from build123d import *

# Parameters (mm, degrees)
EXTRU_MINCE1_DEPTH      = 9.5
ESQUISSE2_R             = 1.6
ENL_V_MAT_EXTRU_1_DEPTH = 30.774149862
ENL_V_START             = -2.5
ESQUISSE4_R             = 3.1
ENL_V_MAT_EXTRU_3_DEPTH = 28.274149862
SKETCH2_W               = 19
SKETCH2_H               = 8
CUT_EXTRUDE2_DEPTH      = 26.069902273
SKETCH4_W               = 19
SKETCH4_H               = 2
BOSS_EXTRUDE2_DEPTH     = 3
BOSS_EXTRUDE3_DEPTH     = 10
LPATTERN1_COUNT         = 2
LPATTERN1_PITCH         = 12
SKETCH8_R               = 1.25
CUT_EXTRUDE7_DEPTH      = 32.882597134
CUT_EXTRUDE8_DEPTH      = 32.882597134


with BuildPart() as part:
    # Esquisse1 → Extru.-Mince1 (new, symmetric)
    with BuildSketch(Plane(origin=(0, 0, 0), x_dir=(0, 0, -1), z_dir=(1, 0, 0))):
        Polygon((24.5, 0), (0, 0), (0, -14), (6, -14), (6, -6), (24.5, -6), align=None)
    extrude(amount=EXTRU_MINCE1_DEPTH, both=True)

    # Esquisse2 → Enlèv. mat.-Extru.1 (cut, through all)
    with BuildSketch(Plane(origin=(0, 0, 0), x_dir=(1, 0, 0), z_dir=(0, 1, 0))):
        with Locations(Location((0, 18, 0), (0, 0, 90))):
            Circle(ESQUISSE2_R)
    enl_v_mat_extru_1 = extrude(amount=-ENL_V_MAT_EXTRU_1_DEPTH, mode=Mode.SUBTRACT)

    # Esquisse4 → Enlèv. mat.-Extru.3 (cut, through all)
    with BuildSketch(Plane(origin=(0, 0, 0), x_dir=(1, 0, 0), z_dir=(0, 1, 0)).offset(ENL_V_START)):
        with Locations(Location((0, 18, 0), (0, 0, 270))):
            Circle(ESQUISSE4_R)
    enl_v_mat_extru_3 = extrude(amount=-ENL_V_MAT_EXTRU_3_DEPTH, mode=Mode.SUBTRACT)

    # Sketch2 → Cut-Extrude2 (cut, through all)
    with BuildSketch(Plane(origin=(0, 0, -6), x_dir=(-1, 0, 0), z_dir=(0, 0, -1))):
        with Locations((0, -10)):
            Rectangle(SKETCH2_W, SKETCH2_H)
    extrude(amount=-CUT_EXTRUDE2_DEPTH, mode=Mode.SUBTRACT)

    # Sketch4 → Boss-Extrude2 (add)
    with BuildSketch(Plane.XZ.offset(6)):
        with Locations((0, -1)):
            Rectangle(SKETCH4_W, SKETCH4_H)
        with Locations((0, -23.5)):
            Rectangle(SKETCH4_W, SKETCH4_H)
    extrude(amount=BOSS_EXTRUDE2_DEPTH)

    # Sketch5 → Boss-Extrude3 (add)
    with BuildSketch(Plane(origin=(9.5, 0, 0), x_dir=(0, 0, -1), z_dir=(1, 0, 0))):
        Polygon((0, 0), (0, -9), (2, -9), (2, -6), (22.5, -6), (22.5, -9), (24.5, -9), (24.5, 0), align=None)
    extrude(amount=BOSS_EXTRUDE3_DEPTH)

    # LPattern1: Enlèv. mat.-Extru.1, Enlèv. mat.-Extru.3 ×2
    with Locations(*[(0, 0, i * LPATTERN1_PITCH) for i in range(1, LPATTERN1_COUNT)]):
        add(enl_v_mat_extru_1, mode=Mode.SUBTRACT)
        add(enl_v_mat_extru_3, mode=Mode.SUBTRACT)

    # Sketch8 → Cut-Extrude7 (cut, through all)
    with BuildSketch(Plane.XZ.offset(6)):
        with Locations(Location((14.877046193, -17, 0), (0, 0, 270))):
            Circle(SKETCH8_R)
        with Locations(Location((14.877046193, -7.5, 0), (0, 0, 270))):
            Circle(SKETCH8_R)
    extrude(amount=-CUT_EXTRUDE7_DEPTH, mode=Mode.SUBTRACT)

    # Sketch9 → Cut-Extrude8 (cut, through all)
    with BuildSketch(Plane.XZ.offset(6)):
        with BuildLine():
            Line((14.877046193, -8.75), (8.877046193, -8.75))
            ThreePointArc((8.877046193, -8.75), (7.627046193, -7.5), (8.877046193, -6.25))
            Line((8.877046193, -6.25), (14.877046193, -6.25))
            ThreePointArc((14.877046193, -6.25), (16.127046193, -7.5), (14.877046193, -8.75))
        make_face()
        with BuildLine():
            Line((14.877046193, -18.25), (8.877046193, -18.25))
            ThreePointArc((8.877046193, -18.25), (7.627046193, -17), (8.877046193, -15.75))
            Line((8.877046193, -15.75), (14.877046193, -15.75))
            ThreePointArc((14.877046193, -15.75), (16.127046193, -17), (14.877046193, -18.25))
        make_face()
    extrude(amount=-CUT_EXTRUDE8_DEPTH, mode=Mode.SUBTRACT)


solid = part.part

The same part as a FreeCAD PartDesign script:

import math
import FreeCAD as App
import Part
import Sketcher
from FreeCAD import Vector
Q = App.Units.Quantity


def add_polygon(sketch, points):
    """Adds a closed chain of lines whose ends are joined by coincident constraints."""
    first, n = sketch.GeometryCount, len(points)
    for a, b in zip(points, points[1:] + points[:1]):
        sketch.addGeometry(Part.LineSegment(App.Vector(*a, 0), App.Vector(*b, 0)), False)
    for i in range(n):
        sketch.addConstraint(Sketcher.Constraint("Coincident", first + i, 2, first + (i + 1) % n, 1))

doc = App.newDocument("Part")
body = doc.addObject("PartDesign::Body", "Body")

# Sketch on YZ plane
sketch1 = doc.addObject("Sketcher::SketchObject", "Sketch")
body.addObject(sketch1)
sketch1.AttachmentSupport = (doc.YZ_Plane, [""])
sketch1.MapMode = "FlatFace"
add_polygon(sketch1, [(0, -24.5), (0, 0), (-14, 0), (-14, -6), (-6, -6), (-6, -24.5)])  # lines 0-5
sketch1.addConstraint([
    Sketcher.Constraint("Vertical", 0),
    Sketcher.Constraint("Horizontal", 1),
    Sketcher.Constraint("Vertical", 2),
    Sketcher.Constraint("Horizontal", 3),
    Sketcher.Constraint("Vertical", 4),
    Sketcher.Constraint("Horizontal", 5),
    Sketcher.Constraint("Coincident", 0, 2, -1, 1),
    Sketcher.Constraint("Equal", 5, 2),
    Sketcher.Constraint("DistanceX", 1, 2, 1, 1, Q("14 mm")),
    Sketcher.Constraint("DistanceX", 3, 1, 3, 2, Q("8 mm")),
    Sketcher.Constraint("DistanceY", 0, 1, 0, 2, Q("24.5 mm")),
])
pad1 = doc.addObject("PartDesign::Pad", "Pad")
body.addObject(pad1)
pad1.Profile = sketch1
pad1.Length = 19
pad1.Midplane = True

# Sketch on XZ plane
sketch2 = doc.addObject("Sketcher::SketchObject", "Sketch001")
body.addObject(sketch2)
sketch2.AttachmentSupport = (doc.XZ_Plane, [""])
sketch2.MapMode = "FlatFace"
sketch2.addGeometry(Part.Circle(Vector(0, -18, 0), Vector(0, 0, 1), 1.6), False)
sketch2.addConstraint([
    Sketcher.Constraint("PointOnObject", 0, 3, -2),
    Sketcher.Constraint("Diameter", 0, Q("3.2 mm")),
    Sketcher.Constraint("DistanceY", 0, 3, -1, 1, Q("18 mm")),
])
pocket1 = doc.addObject("PartDesign::Pocket", "Pocket")
body.addObject(pocket1)
pocket1.Profile = sketch2
pocket1.Type = "ThroughAll"
pocket1.Reversed = True

# Sketch on XZ plane
sketch3 = doc.addObject("Sketcher::SketchObject", "Sketch002")
body.addObject(sketch3)
sketch3.AttachmentSupport = (doc.XZ_Plane, [""])
sketch3.MapMode = "FlatFace"
sketch3.AttachmentOffset = App.Placement(Vector(0, 0, 2.5), App.Rotation())
sketch3.addGeometry(Part.Circle(Vector(0, -18, 0), Vector(0, 0, 1), 3.1), False)
sketch3.addConstraint([
    Sketcher.Constraint("PointOnObject", 0, 3, -2),
    Sketcher.Constraint("Diameter", 0, Q("6.2 mm")),
    Sketcher.Constraint("DistanceY", 0, 3, -1, 1, Q("18 mm")),
])
pocket2 = doc.addObject("PartDesign::Pocket", "Pocket001")
body.addObject(pocket2)
pocket2.Profile = sketch3
pocket2.Type = "ThroughAll"
pocket2.Reversed = True

# Sketch on XY plane
sketch4 = doc.addObject("Sketcher::SketchObject", "Sketch003")
body.addObject(sketch4)
sketch4.AttachmentSupport = (doc.XY_Plane, [""])
sketch4.MapMode = "FlatFace"
sketch4.AttachmentOffset = App.Placement(Vector(0, 0, -6), App.Rotation())
add_polygon(sketch4, [(9.5, -6), (9.5, -14), (-9.5, -14), (-9.5, -6)])  # lines 0-3
sketch4.addConstraint([
    Sketcher.Constraint("Vertical", 0),
    Sketcher.Constraint("Horizontal", 1),
    Sketcher.Constraint("Vertical", 2),
    Sketcher.Constraint("Horizontal", 3),
    Sketcher.Constraint("DistanceX", 1, 2, 1, 1, Q("19 mm")),
    Sketcher.Constraint("DistanceY", 0, 2, 0, 1, Q("8 mm")),
    Sketcher.Constraint("DistanceY", 0, 2, -1, 1, Q("14 mm")),
    Sketcher.Constraint("DistanceX", -1, 1, 0, 2, Q("9.5 mm")),
])
pocket3 = doc.addObject("PartDesign::Pocket", "Pocket002")
body.addObject(pocket3)
pocket3.Profile = sketch4
pocket3.Type = "ThroughAll"
pocket3.Reversed = True

# Sketch on XZ plane
sketch5 = doc.addObject("Sketcher::SketchObject", "Sketch004")
body.addObject(sketch5)
sketch5.AttachmentSupport = (doc.XZ_Plane, [""])
sketch5.MapMode = "FlatFace"
sketch5.AttachmentOffset = App.Placement(Vector(0, 0, 6), App.Rotation())
add_polygon(sketch5, [(-9.5, 0), (-9.5, -2), (9.5, -2), (9.5, 0)])  # lines 0-3
add_polygon(sketch5, [(-9.5, -22.5), (-9.5, -24.5), (9.5, -24.5), (9.5, -22.5)])  # lines 4-7
sketch5.addConstraint([
    Sketcher.Constraint("Vertical", 0),
    Sketcher.Constraint("Horizontal", 1),
    Sketcher.Constraint("Vertical", 2),
    Sketcher.Constraint("Horizontal", 3),
    Sketcher.Constraint("Vertical", 4),
    Sketcher.Constraint("Horizontal", 5),
    Sketcher.Constraint("Vertical", 6),
    Sketcher.Constraint("Horizontal", 7),
    Sketcher.Constraint("Symmetric", 2, 2, 3, 2, -1, 1),
    Sketcher.Constraint("Vertical", 3, 2, 4, 2),
    Sketcher.Constraint("Vertical", 2, 2, 5, 2),
    Sketcher.Constraint("Equal", 2, 4),
    Sketcher.Constraint("DistanceX", 1, 1, 1, 2, Q("19 mm")),
    Sketcher.Constraint("DistanceY", 0, 2, 0, 1, Q("2 mm")),
    Sketcher.Constraint("DistanceY", 4, 2, -1, 1, Q("24.5 mm")),
])
pad2 = doc.addObject("PartDesign::Pad", "Pad001")
body.addObject(pad2)
pad2.Profile = sketch5
pad2.Length = 3

# Sketch on YZ plane
sketch6 = doc.addObject("Sketcher::SketchObject", "Sketch005")
body.addObject(sketch6)
sketch6.AttachmentSupport = (doc.YZ_Plane, [""])
sketch6.MapMode = "FlatFace"
sketch6.AttachmentOffset = App.Placement(Vector(0, 0, 9.5), App.Rotation())
add_polygon(sketch6, [(0, 0), (-9, 0), (-9, -2), (-6, -2), (-6, -22.5), (-9, -22.5), (-9, -24.5), (0, -24.5)])  # lines 0-7
sketch6.addConstraint([
    Sketcher.Constraint("Horizontal", 0),
    Sketcher.Constraint("Vertical", 1),
    Sketcher.Constraint("Horizontal", 2),
    Sketcher.Constraint("Vertical", 3),
    Sketcher.Constraint("Horizontal", 4),
    Sketcher.Constraint("Vertical", 5),
    Sketcher.Constraint("Horizontal", 6),
    Sketcher.Constraint("Vertical", 7),
    Sketcher.Constraint("Coincident", 7, 2, -1, 1),
    Sketcher.Constraint("Vertical", 1, 2, 4, 2),
    Sketcher.Constraint("Equal", 1, 5),
    Sketcher.Constraint("DistanceX", 0, 2, 0, 1, Q("9 mm")),
    Sketcher.Constraint("DistanceX", 2, 1, 2, 2, Q("3 mm")),
    Sketcher.Constraint("DistanceY", 1, 2, 1, 1, Q("2 mm")),
    Sketcher.Constraint("DistanceY", 3, 2, 3, 1, Q("20.5 mm")),
])
pad3 = doc.addObject("PartDesign::Pad", "Pad002")
body.addObject(pad3)
pad3.Profile = sketch6
pad3.Length = 10
doc.recompute()

linearpattern = doc.addObject("PartDesign::LinearPattern", "LinearPattern")
body.addObject(linearpattern)
linearpattern.Originals = [pocket1, pocket2]
linearpattern.Direction = (doc.Z_Axis, [""])
linearpattern.Mode = "offset"
linearpattern.Offset = 12
linearpattern.Occurrences = 2
body.Tip = linearpattern

# Sketch on XZ plane
sketch7 = doc.addObject("Sketcher::SketchObject", "Sketch006")
body.addObject(sketch7)
sketch7.AttachmentSupport = (doc.XZ_Plane, [""])
sketch7.MapMode = "FlatFace"
sketch7.AttachmentOffset = App.Placement(Vector(0, 0, 6), App.Rotation())
sketch7.addGeometry([
    Part.Circle(Vector(14.877046, -17, 0), Vector(0, 0, 1), 1.25),
    Part.Circle(Vector(14.877046, -7.5, 0), Vector(0, 0, 1), 1.25),
], False)
sketch7.addConstraint([
    Sketcher.Constraint("Equal", 0, 1),
    Sketcher.Constraint("Vertical", 0, 3, 1, 3),
    Sketcher.Constraint("Diameter", 0, Q("2.5 mm")),
    Sketcher.Constraint("DistanceY", 0, 3, -1, 1, Q("17 mm")),
    Sketcher.Constraint("DistanceY", 1, 3, -1, 1, Q("7.5 mm")),
    Sketcher.Constraint("DistanceX", -1, 1, 0, 3, Q("14.877046 mm")),
])
pocket4 = doc.addObject("PartDesign::Pocket", "Pocket003")
body.addObject(pocket4)
pocket4.Profile = sketch7
pocket4.Type = "ThroughAll"

# Sketch on XZ plane
sketch8 = doc.addObject("Sketcher::SketchObject", "Sketch007")
body.addObject(sketch8)
sketch8.AttachmentSupport = (doc.XZ_Plane, [""])
sketch8.MapMode = "FlatFace"
sketch8.AttachmentOffset = App.Placement(Vector(0, 0, 6), App.Rotation())
sketch8.addGeometry([
    Part.LineSegment(Vector(8.877046, -8.75, 0), Vector(14.877046, -8.75, 0)),  # 0
    Part.ArcOfCircle(Part.Circle(Vector(14.877046, -7.5, 0), Vector(0, 0, 1), 1.25), math.radians(-90), math.radians(90)),  # 1
    Part.LineSegment(Vector(14.877046, -6.25, 0), Vector(8.877046, -6.25, 0)),  # 2
    Part.ArcOfCircle(Part.Circle(Vector(8.877046, -7.5, 0), Vector(0, 0, 1), 1.25), math.radians(90), math.radians(270)),  # 3
    Part.LineSegment(Vector(8.877046, -18.25, 0), Vector(14.877046, -18.25, 0)),  # 4
    Part.ArcOfCircle(Part.Circle(Vector(14.877046, -17, 0), Vector(0, 0, 1), 1.25), math.radians(-90), math.radians(90)),  # 5
    Part.LineSegment(Vector(14.877046, -15.75, 0), Vector(8.877046, -15.75, 0)),  # 6
    Part.ArcOfCircle(Part.Circle(Vector(8.877046, -17, 0), Vector(0, 0, 1), 1.25), math.radians(90), math.radians(270)),  # 7
], False)
sketch8.addConstraint([
    Sketcher.Constraint("Tangent", 0, 2, 1, 1),
    Sketcher.Constraint("Tangent", 1, 2, 2, 1),
    Sketcher.Constraint("Tangent", 2, 2, 3, 1),
    Sketcher.Constraint("Tangent", 3, 2, 0, 1),
    Sketcher.Constraint("Tangent", 4, 2, 5, 1),
    Sketcher.Constraint("Tangent", 5, 2, 6, 1),
    Sketcher.Constraint("Tangent", 6, 2, 7, 1),
    Sketcher.Constraint("Tangent", 7, 2, 4, 1),
    Sketcher.Constraint("Horizontal", 0),
    Sketcher.Constraint("Horizontal", 2),
    Sketcher.Constraint("Horizontal", 4),
    Sketcher.Constraint("Horizontal", 6),
    Sketcher.Constraint("Equal", 3, 5),
    Sketcher.Constraint("Vertical", 1, 3, 5, 3),
    Sketcher.Constraint("Vertical", 3, 3, 7, 3),
    Sketcher.Constraint("DistanceX", 0, 1, 0, 2, Q("6 mm")),
    Sketcher.Constraint("Radius", 1, Q("1.25 mm")),
    Sketcher.Constraint("DistanceY", 5, 3, -1, 1, Q("17 mm")),
    Sketcher.Constraint("DistanceY", 5, 2, 0, 2, Q("7 mm")),
    Sketcher.Constraint("DistanceX", -1, 1, 1, 3, Q("14.877046 mm")),
])
pocket5 = doc.addObject("PartDesign::Pocket", "Pocket004")
body.addObject(pocket5)
pocket5.Profile = sketch8
pocket5.Type = "ThroughAll"

doc.recompute()
